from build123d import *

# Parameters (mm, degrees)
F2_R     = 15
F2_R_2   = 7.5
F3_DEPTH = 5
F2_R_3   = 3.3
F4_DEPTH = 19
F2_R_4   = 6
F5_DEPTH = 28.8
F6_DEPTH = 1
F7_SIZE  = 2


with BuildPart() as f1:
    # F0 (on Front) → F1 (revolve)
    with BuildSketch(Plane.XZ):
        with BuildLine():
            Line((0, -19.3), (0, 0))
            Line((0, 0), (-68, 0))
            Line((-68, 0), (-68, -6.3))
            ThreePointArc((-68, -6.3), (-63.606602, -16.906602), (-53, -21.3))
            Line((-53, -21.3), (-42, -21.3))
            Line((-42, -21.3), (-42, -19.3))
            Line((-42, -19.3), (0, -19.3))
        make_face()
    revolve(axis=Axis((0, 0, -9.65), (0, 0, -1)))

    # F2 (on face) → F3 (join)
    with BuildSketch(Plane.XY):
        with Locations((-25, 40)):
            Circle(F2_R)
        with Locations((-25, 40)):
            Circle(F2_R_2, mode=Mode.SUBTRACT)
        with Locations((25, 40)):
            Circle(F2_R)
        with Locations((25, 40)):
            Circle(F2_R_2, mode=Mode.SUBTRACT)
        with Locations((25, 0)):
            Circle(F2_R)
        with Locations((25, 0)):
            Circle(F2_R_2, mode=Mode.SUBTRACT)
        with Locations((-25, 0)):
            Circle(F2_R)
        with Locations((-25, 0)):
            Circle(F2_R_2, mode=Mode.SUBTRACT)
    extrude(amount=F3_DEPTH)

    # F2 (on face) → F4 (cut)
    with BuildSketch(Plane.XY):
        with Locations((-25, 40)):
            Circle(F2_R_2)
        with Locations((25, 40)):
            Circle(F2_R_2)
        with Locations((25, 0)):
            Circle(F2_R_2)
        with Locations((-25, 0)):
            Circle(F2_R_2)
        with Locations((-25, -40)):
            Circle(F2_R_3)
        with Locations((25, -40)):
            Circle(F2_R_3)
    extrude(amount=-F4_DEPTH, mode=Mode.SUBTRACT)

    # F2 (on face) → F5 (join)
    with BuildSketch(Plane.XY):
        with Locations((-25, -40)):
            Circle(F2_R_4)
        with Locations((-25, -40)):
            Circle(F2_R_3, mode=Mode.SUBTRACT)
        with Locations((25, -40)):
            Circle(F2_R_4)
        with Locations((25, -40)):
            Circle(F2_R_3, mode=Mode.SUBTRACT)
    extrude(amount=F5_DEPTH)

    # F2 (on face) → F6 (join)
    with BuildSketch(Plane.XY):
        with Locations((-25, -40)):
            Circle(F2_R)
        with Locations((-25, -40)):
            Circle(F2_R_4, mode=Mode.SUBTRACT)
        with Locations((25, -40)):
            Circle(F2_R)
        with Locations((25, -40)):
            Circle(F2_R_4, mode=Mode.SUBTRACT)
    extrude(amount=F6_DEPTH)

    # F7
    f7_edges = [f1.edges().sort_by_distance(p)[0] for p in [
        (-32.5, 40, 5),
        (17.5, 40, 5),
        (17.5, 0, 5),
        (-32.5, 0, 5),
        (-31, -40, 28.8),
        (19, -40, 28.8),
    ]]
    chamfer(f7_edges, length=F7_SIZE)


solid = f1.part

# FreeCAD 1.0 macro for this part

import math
import FreeCAD as App
import Part
import Sketcher

V = App.Vector
Q = App.Units.Quantity


def edges_at(feature, points):
    """Names of the edges that pass closest to the given points."""
    edges = feature.Shape.Edges
    near = lambda p: min(range(len(edges)), key=lambda i: edges[i].distToShape(Part.Vertex(*p))[0])
    return sorted({f"Edge{near(p) + 1}" for p in points})

doc = App.newDocument("Part")
body = doc.addObject("PartDesign::Body", "Body")

sketch1 = doc.addObject("Sketcher::SketchObject", "Sketch")
body.addObject(sketch1)
sketch1.AttachmentSupport = (doc.XZ_Plane, [""])
sketch1.MapMode = "FlatFace"
sketch1.addGeometry([
    Part.LineSegment(V(0, -19.3, 0), V(0, 0, 0)),
    Part.LineSegment(V(0, 0, 0), V(-68, 0, 0)),
    Part.LineSegment(V(-68, 0, 0), V(-68, -6.3, 0)),
    Part.ArcOfCircle(Part.Circle(V(-53, -6.3, 0), V(0, 0, 1), 15), math.radians(180), math.radians(270)),
    Part.LineSegment(V(-53, -21.3, 0), V(-42, -21.3, 0)),
    Part.LineSegment(V(-42, -21.3, 0), V(-42, -19.3, 0)),
    Part.LineSegment(V(-42, -19.3, 0), V(0, -19.3, 0)),
], False)
sketch1.addConstraint([
    Sketcher.Constraint("Coincident", 0, 2, 1, 1),
    Sketcher.Constraint("Coincident", 1, 2, 2, 1),
    Sketcher.Constraint("Tangent", 2, 2, 3, 1),
    Sketcher.Constraint("Tangent", 3, 2, 4, 1),
    Sketcher.Constraint("Coincident", 4, 2, 5, 1),
    Sketcher.Constraint("Coincident", 5, 2, 6, 1),
    Sketcher.Constraint("Coincident", 6, 2, 0, 1),
    Sketcher.Constraint("Vertical", 0),
    Sketcher.Constraint("Horizontal", 1),
    Sketcher.Constraint("Vertical", 2),
    Sketcher.Constraint("Horizontal", 4),
    Sketcher.Constraint("Vertical", 5),
    Sketcher.Constraint("Horizontal", 6),
    Sketcher.Constraint("Coincident", 0, 2, -1, 1),
    Sketcher.Constraint("Radius", 3, Q("14.999999 mm")),
    Sketcher.Constraint("DistanceX", 1, 2, 1, 1, Q("68 mm")),
    Sketcher.Constraint("DistanceX", 4, 1, 4, 2, Q("11 mm")),
    Sketcher.Constraint("DistanceY", 5, 1, 5, 2, Q("2 mm")),
    Sketcher.Constraint("DistanceY", 0, 1, 0, 2, Q("19.3 mm")),
])
revolution = doc.addObject("PartDesign::Revolution", "Revolution")
body.addObject(revolution)
revolution.Profile = sketch1
revolution.ReferenceAxis = (sketch1, ["V_Axis"])
revolution.Angle = 360

sketch2 = doc.addObject("Sketcher::SketchObject", "Sketch001")
body.addObject(sketch2)
sketch2.AttachmentSupport = (doc.XY_Plane, [""])
sketch2.MapMode = "FlatFace"
sketch2.addGeometry([
    Part.Circle(V(-25, 40, 0), V(0, 0, 1), 15),
    Part.Circle(V(-25, 40, 0), V(0, 0, 1), 8),
    Part.Circle(V(25, 40, 0), V(0, 0, 1), 15),
    Part.Circle(V(25, 40, 0), V(0, 0, 1), 8),
    Part.Circle(V(25, 0, 0), V(0, 0, 1), 15),
    Part.Circle(V(25, 0, 0), V(0, 0, 1), 8),
    Part.Circle(V(-25, 0, 0), V(0, 0, 1), 15),
    Part.Circle(V(-25, 0, 0), V(0, 0, 1), 8),
], False)
sketch2.addConstraint([
    Sketcher.Constraint("Coincident", 1, 3, 0, 3),
    Sketcher.Constraint("Coincident", 3, 3, 2, 3),
    Sketcher.Constraint("Coincident", 5, 3, 4, 3),
    Sketcher.Constraint("Coincident", 7, 3, 6, 3),
    Sketcher.Constraint("Equal", 0, 2),
    Sketcher.Constraint("Equal", 1, 3),
    Sketcher.Constraint("Equal", 2, 4),
    Sketcher.Constraint("Equal", 3, 5),
    Sketcher.Constraint("Equal", 4, 6),
    Sketcher.Constraint("Equal", 5, 7),
    Sketcher.Constraint("Symmetric", 4, 3, 6, 3, -1, 1),
    Sketcher.Constraint("Symmetric", 0, 3, 2, 3, -2),
    Sketcher.Constraint("PointOnObject", 4, 3, -1),
    Sketcher.Constraint("Vertical", 3, 3, 4, 3),
    Sketcher.Constraint("Diameter", 0, Q("30 mm")),
    Sketcher.Constraint("Diameter", 1, Q("15 mm")),
    Sketcher.Constraint("DistanceX", 0, 3, -1, 1, Q("25 mm")),
    Sketcher.Constraint("DistanceY", -1, 1, 0, 3, Q("40 mm")),
])
pad1 = doc.addObject("PartDesign::Pad", "Pad")
body.addObject(pad1)
pad1.Profile = sketch2
pad1.Length = 5

sketch3 = doc.addObject("Sketcher::SketchObject", "Sketch002")
body.addObject(sketch3)
sketch3.AttachmentSupport = (doc.XY_Plane, [""])
sketch3.MapMode = "FlatFace"
sketch3.addGeometry([
    Part.Circle(V(-25, 40, 0), V(0, 0, 1), 7.5),
    Part.Circle(V(25, 40, 0), V(0, 0, 1), 7.5),
    Part.Circle(V(25, 0, 0), V(0, 0, 1), 7.5),
    Part.Circle(V(-25, 0, 0), V(0, 0, 1), 7.5),
    Part.Circle(V(-25, -40, 0), V(0, 0, 1), 3.3),
    Part.Circle(V(25, -40, 0), V(0, 0, 1), 3.3),
], False)
sketch3.addConstraint([
    Sketcher.Constraint("Equal", 0, 1),
    Sketcher.Constraint("Equal", 1, 2),
    Sketcher.Constraint("Equal", 2, 3),
    Sketcher.Constraint("Equal", 4, 5),
    Sketcher.Constraint("Symmetric", 2, 3, 3, 3, -1, 1),
    Sketcher.Constraint("Symmetric", 1, 3, 4, 3, -1, 1),
    Sketcher.Constraint("Symmetric", 0, 3, 5, 3, -1, 1),
    Sketcher.Constraint("Symmetric", 0, 3, 1, 3, -2),
    Sketcher.Constraint("PointOnObject", 2, 3, -1),
    Sketcher.Constraint("Vertical", 1, 3, 2, 3),
    Sketcher.Constraint("Diameter", 0, Q("15 mm")),
    Sketcher.Constraint("Diameter", 4, Q("6.6 mm")),
    Sketcher.Constraint("DistanceX", 0, 3, -1, 1, Q("25 mm")),
    Sketcher.Constraint("DistanceY", -1, 1, 0, 3, Q("40 mm")),
])
pocket1 = doc.addObject("PartDesign::Pocket", "Pocket")
body.addObject(pocket1)
pocket1.Profile = sketch3
pocket1.Length = 19

sketch4 = doc.addObject("Sketcher::SketchObject", "Sketch003")
body.addObject(sketch4)
sketch4.AttachmentSupport = (doc.XY_Plane, [""])
sketch4.MapMode = "FlatFace"
sketch4.addGeometry([
    Part.Circle(V(-25, -40, 0), V(0, 0, 1), 6),
    Part.Circle(V(-25, -40, 0), V(0, 0, 1), 3.3),
    Part.Circle(V(25, -40, 0), V(0, 0, 1), 6),
    Part.Circle(V(25, -40, 0), V(0, 0, 1), 3.3),
], False)
sketch4.addConstraint([
    Sketcher.Constraint("Coincident", 1, 3, 0, 3),
    Sketcher.Constraint("Coincident", 3, 3, 2, 3),
    Sketcher.Constraint("Equal", 0, 2),
    Sketcher.Constraint("Equal", 1, 3),
    Sketcher.Constraint("Symmetric", 0, 3, 2, 3, -2),
    Sketcher.Constraint("Diameter", 0, Q("12 mm")),
    Sketcher.Constraint("Diameter", 1, Q("6.6 mm")),
    Sketcher.Constraint("DistanceX", 0, 3, -1, 1, Q("25 mm")),
    Sketcher.Constraint("DistanceY", 0, 3, -1, 1, Q("40 mm")),
])
pad2 = doc.addObject("PartDesign::Pad", "Pad001")
body.addObject(pad2)
pad2.Profile = sketch4
pad2.Length = 28.8

sketch5 = doc.addObject("Sketcher::SketchObject", "Sketch004")
body.addObject(sketch5)
sketch5.AttachmentSupport = (doc.XY_Plane, [""])
sketch5.MapMode = "FlatFace"
sketch5.addGeometry([
    Part.Circle(V(-25, -40, 0), V(0, 0, 1), 15),
    Part.Circle(V(-25, -40, 0), V(0, 0, 1), 6),
    Part.Circle(V(25, -40, 0), V(0, 0, 1), 15),
    Part.Circle(V(25, -40, 0), V(0, 0, 1), 6),
], False)
sketch5.addConstraint([
    Sketcher.Constraint("Coincident", 1, 3, 0, 3),
    Sketcher.Constraint("Coincident", 3, 3, 2, 3),
    Sketcher.Constraint("Equal", 0, 2),
    Sketcher.Constraint("Equal", 1, 3),
    Sketcher.Constraint("Symmetric", 0, 3, 2, 3, -2),
    Sketcher.Constraint("Diameter", 0, Q("30 mm")),
    Sketcher.Constraint("Diameter", 1, Q("12 mm")),
    Sketcher.Constraint("DistanceX", 0, 3, -1, 1, Q("25 mm")),
    Sketcher.Constraint("DistanceY", 0, 3, -1, 1, Q("40 mm")),
])
pad3 = doc.addObject("PartDesign::Pad", "Pad002")
body.addObject(pad3)
pad3.Profile = sketch5
pad3.Length = 1
doc.recompute()

chamfer = doc.addObject("PartDesign::Chamfer", "Chamfer")
body.addObject(chamfer)
chamfer.Base = (pad3, edges_at(pad3, [
    (-32.5, 40, 5),
    (17.5, 40, 5),
    (17.5, 0, 5),
    (-32.5, 0, 5),
    (-31, -40, 28.8),
    (19, -40, 28.8),
]))
chamfer.Size = 2

doc.recompute()
